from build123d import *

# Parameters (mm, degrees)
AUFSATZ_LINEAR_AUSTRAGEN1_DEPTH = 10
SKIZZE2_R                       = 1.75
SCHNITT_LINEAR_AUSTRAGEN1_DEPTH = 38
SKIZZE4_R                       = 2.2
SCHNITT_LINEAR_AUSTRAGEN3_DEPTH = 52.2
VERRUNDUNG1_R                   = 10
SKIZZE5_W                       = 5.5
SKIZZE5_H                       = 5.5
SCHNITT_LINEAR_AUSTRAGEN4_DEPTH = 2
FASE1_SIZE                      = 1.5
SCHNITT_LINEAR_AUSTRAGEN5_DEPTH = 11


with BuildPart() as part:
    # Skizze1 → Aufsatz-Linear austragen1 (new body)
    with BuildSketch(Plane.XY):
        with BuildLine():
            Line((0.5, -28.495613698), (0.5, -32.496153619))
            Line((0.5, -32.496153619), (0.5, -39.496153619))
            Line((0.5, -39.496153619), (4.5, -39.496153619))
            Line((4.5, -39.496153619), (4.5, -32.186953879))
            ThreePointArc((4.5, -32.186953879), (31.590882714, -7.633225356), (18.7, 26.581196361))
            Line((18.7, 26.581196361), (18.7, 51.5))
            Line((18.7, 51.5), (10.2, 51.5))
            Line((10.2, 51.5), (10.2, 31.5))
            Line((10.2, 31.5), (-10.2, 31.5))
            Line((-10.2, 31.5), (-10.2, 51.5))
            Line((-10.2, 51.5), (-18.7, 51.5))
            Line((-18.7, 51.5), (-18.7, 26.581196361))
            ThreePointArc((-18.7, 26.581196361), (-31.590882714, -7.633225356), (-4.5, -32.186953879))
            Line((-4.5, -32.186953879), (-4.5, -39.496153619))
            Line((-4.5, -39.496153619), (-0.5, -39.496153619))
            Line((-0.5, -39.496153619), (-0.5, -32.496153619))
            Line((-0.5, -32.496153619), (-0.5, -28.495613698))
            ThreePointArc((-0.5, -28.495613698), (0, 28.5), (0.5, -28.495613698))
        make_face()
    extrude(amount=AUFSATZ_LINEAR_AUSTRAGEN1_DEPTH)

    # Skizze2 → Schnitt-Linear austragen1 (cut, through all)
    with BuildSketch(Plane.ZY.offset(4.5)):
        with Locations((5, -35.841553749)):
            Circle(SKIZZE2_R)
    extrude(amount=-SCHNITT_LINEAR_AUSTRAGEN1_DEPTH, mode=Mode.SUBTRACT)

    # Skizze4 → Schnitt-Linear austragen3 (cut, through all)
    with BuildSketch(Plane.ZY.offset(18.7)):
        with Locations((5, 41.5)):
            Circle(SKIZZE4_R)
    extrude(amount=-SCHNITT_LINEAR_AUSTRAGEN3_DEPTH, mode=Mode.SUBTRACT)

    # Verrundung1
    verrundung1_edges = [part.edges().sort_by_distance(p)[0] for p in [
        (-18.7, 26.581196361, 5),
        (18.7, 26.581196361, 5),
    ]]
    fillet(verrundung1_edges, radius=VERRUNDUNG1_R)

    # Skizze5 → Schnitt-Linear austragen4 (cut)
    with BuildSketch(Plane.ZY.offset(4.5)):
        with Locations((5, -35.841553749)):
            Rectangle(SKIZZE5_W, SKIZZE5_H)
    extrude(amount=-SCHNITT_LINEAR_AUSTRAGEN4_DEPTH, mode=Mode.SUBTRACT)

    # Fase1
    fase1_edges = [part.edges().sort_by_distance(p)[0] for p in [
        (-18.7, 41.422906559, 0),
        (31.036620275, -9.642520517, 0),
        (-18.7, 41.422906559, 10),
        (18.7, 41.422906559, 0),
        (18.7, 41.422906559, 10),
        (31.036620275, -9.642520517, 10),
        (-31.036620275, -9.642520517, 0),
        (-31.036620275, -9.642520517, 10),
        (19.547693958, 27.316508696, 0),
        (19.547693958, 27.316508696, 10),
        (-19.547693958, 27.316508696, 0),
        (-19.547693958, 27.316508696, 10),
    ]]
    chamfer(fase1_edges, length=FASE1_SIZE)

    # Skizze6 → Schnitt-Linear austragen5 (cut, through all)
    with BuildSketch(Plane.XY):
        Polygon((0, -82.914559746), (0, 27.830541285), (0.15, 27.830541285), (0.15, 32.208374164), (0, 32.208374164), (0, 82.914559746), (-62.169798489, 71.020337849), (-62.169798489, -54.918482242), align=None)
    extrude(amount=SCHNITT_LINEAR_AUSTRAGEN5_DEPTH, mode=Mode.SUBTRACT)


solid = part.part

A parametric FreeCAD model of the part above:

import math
import FreeCAD as App
import Part
import Sketcher
Q = App.Units.Quantity


def edges_at(feature, points):
    """Names of the edges that pass closest to the given points."""
    edges = feature.Shape.Edges
    near = lambda p: min(range(len(edges)), key=lambda i: edges[i].distToShape(Part.Vertex(*p))[0])
    return sorted({f"Edge{near(p) + 1}" for p in points})


def add_polygon(sketch, points):
    """Adds a closed chain of lines whose ends are joined by coincident constraints."""
    first, n = sketch.GeometryCount, len(points)
    for a, b in zip(points, points[1:] + points[:1]):
        sketch.addGeometry(Part.LineSegment(App.Vector(*a, 0), App.Vector(*b, 0)), False)
    for i in range(n):
        sketch.addConstraint(Sketcher.Constraint("Coincident", first + i, 2, first + (i + 1) % n, 1))

doc = App.newDocument("Part")
body = doc.addObject("PartDesign::Body", "Body")

# Sketch on XY plane
sketch1 = body.newObject("Sketcher::SketchObject", "Sketch")
sketch1.AttachmentSupport = (doc.getObject("XY_Plane"), [""])
sketch1.MapMode = "FlatFace"
sketch1.addGeometry(Part.LineSegment(App.Vector(0.5, -28.5, 0), App.Vector(0.5, -39.5, 0)), False)
sketch1.addGeometry(Part.LineSegment(App.Vector(0.5, -39.5, 0), App.Vector(4.5, -39.5, 0)), False)
sketch1.addGeometry(Part.LineSegment(App.Vector(4.5, -39.5, 0), App.Vector(4.5, -32.2, 0)), False)
sketch1.addGeometry(Part.ArcOfCircle(Part.Circle(App.Vector(0, 0, 0), App.Vector(0, 0, 1), 32.5), math.radians(-82), math.radians(55)), False)
sketch1.addGeometry(Part.LineSegment(App.Vector(18.7, 26.6, 0), App.Vector(18.7, 51.5, 0)), False)
sketch1.addGeometry(Part.LineSegment(App.Vector(18.7, 51.5, 0), App.Vector(10.2, 51.5, 0)), False)
sketch1.addGeometry(Part.LineSegment(App.Vector(10.2, 51.5, 0), App.Vector(10.2, 31.5, 0)), False)
sketch1.addGeometry(Part.LineSegment(App.Vector(10.2, 31.5, 0), App.Vector(-10.2, 31.5, 0)), False)
sketch1.addGeometry(Part.LineSegment(App.Vector(-10.2, 31.5, 0), App.Vector(-10.2, 51.5, 0)), False)
sketch1.addGeometry(Part.LineSegment(App.Vector(-10.2, 51.5, 0), App.Vector(-18.7, 51.5, 0)), False)
sketch1.addGeometry(Part.LineSegment(App.Vector(-18.7, 51.5, 0), App.Vector(-18.7, 26.6, 0)), False)
sketch1.addGeometry(Part.ArcOfCircle(Part.Circle(App.Vector(0, 0, 0), App.Vector(0, 0, 1), 32.5), math.radians(125), math.radians(262)), False)
sketch1.addGeometry(Part.LineSegment(App.Vector(-4.5, -32.2, 0), App.Vector(-4.5, -39.5, 0)), False)
sketch1.addGeometry(Part.LineSegment(App.Vector(-4.5, -39.5, 0), App.Vector(-0.5, -39.5, 0)), False)
sketch1.addGeometry(Part.LineSegment(App.Vector(-0.5, -39.5, 0), App.Vector(-0.5, -28.5, 0)), False)
sketch1.addGeometry(Part.ArcOfCircle(Part.Circle(App.Vector(0, 0, 0), App.Vector(0, 0, 1), 28.5), math.radians(-89), math.radians(269)), False)
sketch1.addConstraint(Sketcher.Constraint("Coincident", 0, 2, 1, 1))
sketch1.addConstraint(Sketcher.Constraint("Coincident", 1, 2, 2, 1))
sketch1.addConstraint(Sketcher.Constraint("Coincident", 2, 2, 3, 1))
sketch1.addConstraint(Sketcher.Constraint("Coincident", 3, 2, 4, 1))
sketch1.addConstraint(Sketcher.Constraint("Coincident", 4, 2, 5, 1))
sketch1.addConstraint(Sketcher.Constraint("Coincident", 5, 2, 6, 1))
sketch1.addConstraint(Sketcher.Constraint("Coincident", 6, 2, 7, 1))
sketch1.addConstraint(Sketcher.Constraint("Coincident", 7, 2, 8, 1))
sketch1.addConstraint(Sketcher.Constraint("Coincident", 8, 2, 9, 1))
sketch1.addConstraint(Sketcher.Constraint("Coincident", 9, 2, 10, 1))
sketch1.addConstraint(Sketcher.Constraint("Coincident", 10, 2, 11, 1))
sketch1.addConstraint(Sketcher.Constraint("Coincident", 11, 2, 12, 1))
sketch1.addConstraint(Sketcher.Constraint("Coincident", 12, 2, 13, 1))
sketch1.addConstraint(Sketcher.Constraint("Coincident", 13, 2, 14, 1))
sketch1.addConstraint(Sketcher.Constraint("Coincident", 14, 2, 15, 2))
sketch1.addConstraint(Sketcher.Constraint("Coincident", 15, 1, 0, 1))
sketch1.addConstraint(Sketcher.Constraint("Vertical", 0))
sketch1.addConstraint(Sketcher.Constraint("Horizontal", 1))
sketch1.addConstraint(Sketcher.Constraint("Vertical", 2))
sketch1.addConstraint(Sketcher.Constraint("Vertical", 4))
sketch1.addConstraint(Sketcher.Constraint("Horizontal", 5))
sketch1.addConstraint(Sketcher.Constraint("Vertical", 6))
sketch1.addConstraint(Sketcher.Constraint("Horizontal", 7))
sketch1.addConstraint(Sketcher.Constraint("Vertical", 8))
sketch1.addConstraint(Sketcher.Constraint("Horizontal", 9))
sketch1.addConstraint(Sketcher.Constraint("Vertical", 10))
sketch1.addConstraint(Sketcher.Constraint("Vertical", 12))
sketch1.addConstraint(Sketcher.Constraint("Horizontal", 13))
sketch1.addConstraint(Sketcher.Constraint("Vertical", 14))
sketch1.addConstraint(Sketcher.Constraint("Coincident", 3, 3, -1, 1))
sketch1.addConstraint(Sketcher.Constraint("Coincident", 11, 3, -1, 1))
sketch1.addConstraint(Sketcher.Constraint("Coincident", 15, 3, -1, 1))
sketch1.addConstraint(Sketcher.Constraint("Equal", 3, 11))
sketch1.addConstraint(Sketcher.Constraint("Symmetric", 5, 2, 8, 2, -2))
sketch1.addConstraint(Sketcher.Constraint("Symmetric", 1, 2, 12, 2, -2))
sketch1.addConstraint(Sketcher.Constraint("Horizontal", 3, 2, 10, 2))
sketch1.addConstraint(Sketcher.Constraint("Horizontal", 14, 2, 15, 1))
sketch1.addConstraint(Sketcher.Constraint("Radius", 3, Q("32.5 mm")))
sketch1.addConstraint(Sketcher.Constraint("Radius", 15, Q("28.5 mm")))
sketch1.addConstraint(Sketcher.Constraint("DistanceX", 1, 1, 1, 2, Q("4 mm")))
sketch1.addConstraint(Sketcher.Constraint("DistanceY", 6, 2, 6, 1, Q("20 mm")))
sketch1.addConstraint(Sketcher.Constraint("DistanceX", 5, 2, 5, 1, Q("8.5 mm")))
sketch1.addConstraint(Sketcher.Constraint("DistanceX", 7, 2, 7, 1, Q("20.4 mm")))
sketch1.addConstraint(Sketcher.Constraint("DistanceX", 11, 2, 0, 2, Q("5 mm")))
sketch1.addConstraint(Sketcher.Constraint("DistanceY", -1, 1, 4, 2, Q("51.5 mm")))
sketch1.addConstraint(Sketcher.Constraint("DistanceY", 2, 1, 2, 2, Q("7.3092 mm")))
pad1 = body.newObject("PartDesign::Pad", "Pad")
pad1.Profile = sketch1
pad1.Length = 10

# Sketch on YZ plane
sketch2 = body.newObject("Sketcher::SketchObject", "Sketch001")
sketch2.AttachmentSupport = (doc.getObject("YZ_Plane"), [""])
sketch2.MapMode = "FlatFace"
sketch2.AttachmentOffset = App.Placement(App.Vector(0, 0, -4.5), App.Rotation())
sketch2.addGeometry(Part.Circle(App.Vector(-35.8, 5, 0), App.Vector(0, 0, 1), 1.8), False)
sketch2.addConstraint(Sketcher.Constraint("Diameter", 0, Q("3.5 mm")))
sketch2.addConstraint(Sketcher.Constraint("DistanceY", -1, 1, 0, 3, Q("5 mm")))
sketch2.addConstraint(Sketcher.Constraint("DistanceX", 0, 3, -1, 1, Q("35.841554 mm")))
pocket1 = body.newObject("PartDesign::Pocket", "Pocket")
pocket1.Profile = sketch2
pocket1.Type = "ThroughAll"
pocket1.Reversed = True

# Sketch on YZ plane
sketch3 = body.newObject("Sketcher::SketchObject", "Sketch002")
sketch3.AttachmentSupport = (doc.getObject("YZ_Plane"), [""])
sketch3.MapMode = "FlatFace"
sketch3.AttachmentOffset = App.Placement(App.Vector(0, 0, -18.7), App.Rotation())
sketch3.addGeometry(Part.Circle(App.Vector(41.5, 5, 0), App.Vector(0, 0, 1), 2.2), False)
sketch3.addConstraint(Sketcher.Constraint("Diameter", 0, Q("4.4 mm")))
sketch3.addConstraint(Sketcher.Constraint("DistanceY", -1, 1, 0, 3, Q("5 mm")))
sketch3.addConstraint(Sketcher.Constraint("DistanceX", -1, 1, 0, 3, Q("41.5 mm")))
pocket2 = body.newObject("PartDesign::Pocket", "Pocket001")
pocket2.Profile = sketch3
pocket2.Type = "ThroughAll"
pocket2.Reversed = True
doc.recompute()

fillet = body.newObject("PartDesign::Fillet", "Fillet")
fillet.Base = (pocket2, edges_at(pocket2, [(-18.7, 26.581, 5), (18.7, 26.581, 5)]))
fillet.Radius = 10

# Sketch on YZ plane
sketch4 = body.newObject("Sketcher::SketchObject", "Sketch003")
sketch4.AttachmentSupport = (doc.getObject("YZ_Plane"), [""])
sketch4.MapMode = "FlatFace"
sketch4.AttachmentOffset = App.Placement(App.Vector(0, 0, -4.5), App.Rotation())
add_polygon(sketch4, [(-33, 2), (-39, 2), (-39, 8), (-33, 8)])  # lines 0-3
sketch4.addConstraint(Sketcher.Constraint("Horizontal", 0))
sketch4.addConstraint(Sketcher.Constraint("Vertical", 1))
sketch4.addConstraint(Sketcher.Constraint("Horizontal", 2))
sketch4.addConstraint(Sketcher.Constraint("Vertical", 3))
sketch4.addConstraint(Sketcher.Constraint("Equal", 2, 1))
sketch4.addConstraint(Sketcher.Constraint("DistanceX", 0, 2, 0, 1, Q("5.5 mm")))
sketch4.addConstraint(Sketcher.Constraint("DistanceY", -1, 1, 0, 2, Q("2.25 mm")))
sketch4.addConstraint(Sketcher.Constraint("DistanceX", 0, 2, -1, 1, Q("38.591554 mm")))
pocket3 = body.newObject("PartDesign::Pocket", "Pocket002")
pocket3.Profile = sketch4
pocket3.Length = 2
pocket3.Reversed = True
doc.recompute()

chamfer = body.newObject("PartDesign::Chamfer", "Chamfer")
chamfer.Base = (pocket3, edges_at(pocket3, [
    (-18.7, 41.423, 0),
    (31.037, -9.643, 0),
    (-18.7, 41.423, 10),
    (18.7, 41.423, 0),
    (18.7, 41.423, 10),
    (31.037, -9.643, 10),
    (-31.037, -9.643, 0),
    (-31.037, -9.643, 10),
    (19.548, 27.317, 0),
    (19.548, 27.317, 10),
    (-19.548, 27.317, 0),
    (-19.548, 27.317, 10),
]))
chamfer.Size = 1.5

# Sketch on XY plane
sketch5 = body.newObject("Sketcher::SketchObject", "Sketch004")
sketch5.AttachmentSupport = (doc.getObject("XY_Plane"), [""])
sketch5.MapMode = "FlatFace"
add_polygon(sketch5, [(0, -82.91), (0, 27.83), (0.15, 27.83), (0.15, 32.21), (0, 32.21), (0, 82.91), (-62.17, 71.02), (-62.17, -54.92)])  # lines 0-7
sketch5.addConstraint(Sketcher.Constraint("Vertical", 0))
sketch5.addConstraint(Sketcher.Constraint("Horizontal", 1))
sketch5.addConstraint(Sketcher.Constraint("Vertical", 2))
sketch5.addConstraint(Sketcher.Constraint("Horizontal", 3))
sketch5.addConstraint(Sketcher.Constraint("Vertical", 4))
sketch5.addConstraint(Sketcher.Constraint("Vertical", 6))
sketch5.addConstraint(Sketcher.Constraint("Symmetric", 4, 2, 7, 2, -1, 1))
sketch5.addConstraint(Sketcher.Constraint("PointOnObject", 0, 2, -2))
sketch5.addConstraint(Sketcher.Constraint("DistanceX", 1, 1, 1, 2, Q("0.15 mm")))
sketch5.addConstraint(Sketcher.Constraint("DistanceY", 0, 1, 0, 2, Q("110.745101 mm")))
sketch5.addConstraint(Sketcher.Constraint("DistanceY", 6, 2, 6, 1, Q("125.93882 mm")))
sketch5.addConstraint(Sketcher.Constraint("DistanceX", 5, 2, -1, 1, Q("62.169798 mm")))
sketch5.addConstraint(Sketcher.Constraint("Distance", 7, Q("68.18258 mm")))
sketch5.addConstraint(Sketcher.Constraint("DistanceY", 2, 1, 2, 2, Q("4.377833 mm")))
sketch5.addConstraint(Sketcher.Constraint("DistanceY", 4, 1, 4, 2, Q("50.706186 mm")))
pocket4 = body.newObject("PartDesign::Pocket", "Pocket003")
pocket4.Profile = sketch5
pocket4.Type = "ThroughAll"
pocket4.Reversed = True

doc.recompute()
